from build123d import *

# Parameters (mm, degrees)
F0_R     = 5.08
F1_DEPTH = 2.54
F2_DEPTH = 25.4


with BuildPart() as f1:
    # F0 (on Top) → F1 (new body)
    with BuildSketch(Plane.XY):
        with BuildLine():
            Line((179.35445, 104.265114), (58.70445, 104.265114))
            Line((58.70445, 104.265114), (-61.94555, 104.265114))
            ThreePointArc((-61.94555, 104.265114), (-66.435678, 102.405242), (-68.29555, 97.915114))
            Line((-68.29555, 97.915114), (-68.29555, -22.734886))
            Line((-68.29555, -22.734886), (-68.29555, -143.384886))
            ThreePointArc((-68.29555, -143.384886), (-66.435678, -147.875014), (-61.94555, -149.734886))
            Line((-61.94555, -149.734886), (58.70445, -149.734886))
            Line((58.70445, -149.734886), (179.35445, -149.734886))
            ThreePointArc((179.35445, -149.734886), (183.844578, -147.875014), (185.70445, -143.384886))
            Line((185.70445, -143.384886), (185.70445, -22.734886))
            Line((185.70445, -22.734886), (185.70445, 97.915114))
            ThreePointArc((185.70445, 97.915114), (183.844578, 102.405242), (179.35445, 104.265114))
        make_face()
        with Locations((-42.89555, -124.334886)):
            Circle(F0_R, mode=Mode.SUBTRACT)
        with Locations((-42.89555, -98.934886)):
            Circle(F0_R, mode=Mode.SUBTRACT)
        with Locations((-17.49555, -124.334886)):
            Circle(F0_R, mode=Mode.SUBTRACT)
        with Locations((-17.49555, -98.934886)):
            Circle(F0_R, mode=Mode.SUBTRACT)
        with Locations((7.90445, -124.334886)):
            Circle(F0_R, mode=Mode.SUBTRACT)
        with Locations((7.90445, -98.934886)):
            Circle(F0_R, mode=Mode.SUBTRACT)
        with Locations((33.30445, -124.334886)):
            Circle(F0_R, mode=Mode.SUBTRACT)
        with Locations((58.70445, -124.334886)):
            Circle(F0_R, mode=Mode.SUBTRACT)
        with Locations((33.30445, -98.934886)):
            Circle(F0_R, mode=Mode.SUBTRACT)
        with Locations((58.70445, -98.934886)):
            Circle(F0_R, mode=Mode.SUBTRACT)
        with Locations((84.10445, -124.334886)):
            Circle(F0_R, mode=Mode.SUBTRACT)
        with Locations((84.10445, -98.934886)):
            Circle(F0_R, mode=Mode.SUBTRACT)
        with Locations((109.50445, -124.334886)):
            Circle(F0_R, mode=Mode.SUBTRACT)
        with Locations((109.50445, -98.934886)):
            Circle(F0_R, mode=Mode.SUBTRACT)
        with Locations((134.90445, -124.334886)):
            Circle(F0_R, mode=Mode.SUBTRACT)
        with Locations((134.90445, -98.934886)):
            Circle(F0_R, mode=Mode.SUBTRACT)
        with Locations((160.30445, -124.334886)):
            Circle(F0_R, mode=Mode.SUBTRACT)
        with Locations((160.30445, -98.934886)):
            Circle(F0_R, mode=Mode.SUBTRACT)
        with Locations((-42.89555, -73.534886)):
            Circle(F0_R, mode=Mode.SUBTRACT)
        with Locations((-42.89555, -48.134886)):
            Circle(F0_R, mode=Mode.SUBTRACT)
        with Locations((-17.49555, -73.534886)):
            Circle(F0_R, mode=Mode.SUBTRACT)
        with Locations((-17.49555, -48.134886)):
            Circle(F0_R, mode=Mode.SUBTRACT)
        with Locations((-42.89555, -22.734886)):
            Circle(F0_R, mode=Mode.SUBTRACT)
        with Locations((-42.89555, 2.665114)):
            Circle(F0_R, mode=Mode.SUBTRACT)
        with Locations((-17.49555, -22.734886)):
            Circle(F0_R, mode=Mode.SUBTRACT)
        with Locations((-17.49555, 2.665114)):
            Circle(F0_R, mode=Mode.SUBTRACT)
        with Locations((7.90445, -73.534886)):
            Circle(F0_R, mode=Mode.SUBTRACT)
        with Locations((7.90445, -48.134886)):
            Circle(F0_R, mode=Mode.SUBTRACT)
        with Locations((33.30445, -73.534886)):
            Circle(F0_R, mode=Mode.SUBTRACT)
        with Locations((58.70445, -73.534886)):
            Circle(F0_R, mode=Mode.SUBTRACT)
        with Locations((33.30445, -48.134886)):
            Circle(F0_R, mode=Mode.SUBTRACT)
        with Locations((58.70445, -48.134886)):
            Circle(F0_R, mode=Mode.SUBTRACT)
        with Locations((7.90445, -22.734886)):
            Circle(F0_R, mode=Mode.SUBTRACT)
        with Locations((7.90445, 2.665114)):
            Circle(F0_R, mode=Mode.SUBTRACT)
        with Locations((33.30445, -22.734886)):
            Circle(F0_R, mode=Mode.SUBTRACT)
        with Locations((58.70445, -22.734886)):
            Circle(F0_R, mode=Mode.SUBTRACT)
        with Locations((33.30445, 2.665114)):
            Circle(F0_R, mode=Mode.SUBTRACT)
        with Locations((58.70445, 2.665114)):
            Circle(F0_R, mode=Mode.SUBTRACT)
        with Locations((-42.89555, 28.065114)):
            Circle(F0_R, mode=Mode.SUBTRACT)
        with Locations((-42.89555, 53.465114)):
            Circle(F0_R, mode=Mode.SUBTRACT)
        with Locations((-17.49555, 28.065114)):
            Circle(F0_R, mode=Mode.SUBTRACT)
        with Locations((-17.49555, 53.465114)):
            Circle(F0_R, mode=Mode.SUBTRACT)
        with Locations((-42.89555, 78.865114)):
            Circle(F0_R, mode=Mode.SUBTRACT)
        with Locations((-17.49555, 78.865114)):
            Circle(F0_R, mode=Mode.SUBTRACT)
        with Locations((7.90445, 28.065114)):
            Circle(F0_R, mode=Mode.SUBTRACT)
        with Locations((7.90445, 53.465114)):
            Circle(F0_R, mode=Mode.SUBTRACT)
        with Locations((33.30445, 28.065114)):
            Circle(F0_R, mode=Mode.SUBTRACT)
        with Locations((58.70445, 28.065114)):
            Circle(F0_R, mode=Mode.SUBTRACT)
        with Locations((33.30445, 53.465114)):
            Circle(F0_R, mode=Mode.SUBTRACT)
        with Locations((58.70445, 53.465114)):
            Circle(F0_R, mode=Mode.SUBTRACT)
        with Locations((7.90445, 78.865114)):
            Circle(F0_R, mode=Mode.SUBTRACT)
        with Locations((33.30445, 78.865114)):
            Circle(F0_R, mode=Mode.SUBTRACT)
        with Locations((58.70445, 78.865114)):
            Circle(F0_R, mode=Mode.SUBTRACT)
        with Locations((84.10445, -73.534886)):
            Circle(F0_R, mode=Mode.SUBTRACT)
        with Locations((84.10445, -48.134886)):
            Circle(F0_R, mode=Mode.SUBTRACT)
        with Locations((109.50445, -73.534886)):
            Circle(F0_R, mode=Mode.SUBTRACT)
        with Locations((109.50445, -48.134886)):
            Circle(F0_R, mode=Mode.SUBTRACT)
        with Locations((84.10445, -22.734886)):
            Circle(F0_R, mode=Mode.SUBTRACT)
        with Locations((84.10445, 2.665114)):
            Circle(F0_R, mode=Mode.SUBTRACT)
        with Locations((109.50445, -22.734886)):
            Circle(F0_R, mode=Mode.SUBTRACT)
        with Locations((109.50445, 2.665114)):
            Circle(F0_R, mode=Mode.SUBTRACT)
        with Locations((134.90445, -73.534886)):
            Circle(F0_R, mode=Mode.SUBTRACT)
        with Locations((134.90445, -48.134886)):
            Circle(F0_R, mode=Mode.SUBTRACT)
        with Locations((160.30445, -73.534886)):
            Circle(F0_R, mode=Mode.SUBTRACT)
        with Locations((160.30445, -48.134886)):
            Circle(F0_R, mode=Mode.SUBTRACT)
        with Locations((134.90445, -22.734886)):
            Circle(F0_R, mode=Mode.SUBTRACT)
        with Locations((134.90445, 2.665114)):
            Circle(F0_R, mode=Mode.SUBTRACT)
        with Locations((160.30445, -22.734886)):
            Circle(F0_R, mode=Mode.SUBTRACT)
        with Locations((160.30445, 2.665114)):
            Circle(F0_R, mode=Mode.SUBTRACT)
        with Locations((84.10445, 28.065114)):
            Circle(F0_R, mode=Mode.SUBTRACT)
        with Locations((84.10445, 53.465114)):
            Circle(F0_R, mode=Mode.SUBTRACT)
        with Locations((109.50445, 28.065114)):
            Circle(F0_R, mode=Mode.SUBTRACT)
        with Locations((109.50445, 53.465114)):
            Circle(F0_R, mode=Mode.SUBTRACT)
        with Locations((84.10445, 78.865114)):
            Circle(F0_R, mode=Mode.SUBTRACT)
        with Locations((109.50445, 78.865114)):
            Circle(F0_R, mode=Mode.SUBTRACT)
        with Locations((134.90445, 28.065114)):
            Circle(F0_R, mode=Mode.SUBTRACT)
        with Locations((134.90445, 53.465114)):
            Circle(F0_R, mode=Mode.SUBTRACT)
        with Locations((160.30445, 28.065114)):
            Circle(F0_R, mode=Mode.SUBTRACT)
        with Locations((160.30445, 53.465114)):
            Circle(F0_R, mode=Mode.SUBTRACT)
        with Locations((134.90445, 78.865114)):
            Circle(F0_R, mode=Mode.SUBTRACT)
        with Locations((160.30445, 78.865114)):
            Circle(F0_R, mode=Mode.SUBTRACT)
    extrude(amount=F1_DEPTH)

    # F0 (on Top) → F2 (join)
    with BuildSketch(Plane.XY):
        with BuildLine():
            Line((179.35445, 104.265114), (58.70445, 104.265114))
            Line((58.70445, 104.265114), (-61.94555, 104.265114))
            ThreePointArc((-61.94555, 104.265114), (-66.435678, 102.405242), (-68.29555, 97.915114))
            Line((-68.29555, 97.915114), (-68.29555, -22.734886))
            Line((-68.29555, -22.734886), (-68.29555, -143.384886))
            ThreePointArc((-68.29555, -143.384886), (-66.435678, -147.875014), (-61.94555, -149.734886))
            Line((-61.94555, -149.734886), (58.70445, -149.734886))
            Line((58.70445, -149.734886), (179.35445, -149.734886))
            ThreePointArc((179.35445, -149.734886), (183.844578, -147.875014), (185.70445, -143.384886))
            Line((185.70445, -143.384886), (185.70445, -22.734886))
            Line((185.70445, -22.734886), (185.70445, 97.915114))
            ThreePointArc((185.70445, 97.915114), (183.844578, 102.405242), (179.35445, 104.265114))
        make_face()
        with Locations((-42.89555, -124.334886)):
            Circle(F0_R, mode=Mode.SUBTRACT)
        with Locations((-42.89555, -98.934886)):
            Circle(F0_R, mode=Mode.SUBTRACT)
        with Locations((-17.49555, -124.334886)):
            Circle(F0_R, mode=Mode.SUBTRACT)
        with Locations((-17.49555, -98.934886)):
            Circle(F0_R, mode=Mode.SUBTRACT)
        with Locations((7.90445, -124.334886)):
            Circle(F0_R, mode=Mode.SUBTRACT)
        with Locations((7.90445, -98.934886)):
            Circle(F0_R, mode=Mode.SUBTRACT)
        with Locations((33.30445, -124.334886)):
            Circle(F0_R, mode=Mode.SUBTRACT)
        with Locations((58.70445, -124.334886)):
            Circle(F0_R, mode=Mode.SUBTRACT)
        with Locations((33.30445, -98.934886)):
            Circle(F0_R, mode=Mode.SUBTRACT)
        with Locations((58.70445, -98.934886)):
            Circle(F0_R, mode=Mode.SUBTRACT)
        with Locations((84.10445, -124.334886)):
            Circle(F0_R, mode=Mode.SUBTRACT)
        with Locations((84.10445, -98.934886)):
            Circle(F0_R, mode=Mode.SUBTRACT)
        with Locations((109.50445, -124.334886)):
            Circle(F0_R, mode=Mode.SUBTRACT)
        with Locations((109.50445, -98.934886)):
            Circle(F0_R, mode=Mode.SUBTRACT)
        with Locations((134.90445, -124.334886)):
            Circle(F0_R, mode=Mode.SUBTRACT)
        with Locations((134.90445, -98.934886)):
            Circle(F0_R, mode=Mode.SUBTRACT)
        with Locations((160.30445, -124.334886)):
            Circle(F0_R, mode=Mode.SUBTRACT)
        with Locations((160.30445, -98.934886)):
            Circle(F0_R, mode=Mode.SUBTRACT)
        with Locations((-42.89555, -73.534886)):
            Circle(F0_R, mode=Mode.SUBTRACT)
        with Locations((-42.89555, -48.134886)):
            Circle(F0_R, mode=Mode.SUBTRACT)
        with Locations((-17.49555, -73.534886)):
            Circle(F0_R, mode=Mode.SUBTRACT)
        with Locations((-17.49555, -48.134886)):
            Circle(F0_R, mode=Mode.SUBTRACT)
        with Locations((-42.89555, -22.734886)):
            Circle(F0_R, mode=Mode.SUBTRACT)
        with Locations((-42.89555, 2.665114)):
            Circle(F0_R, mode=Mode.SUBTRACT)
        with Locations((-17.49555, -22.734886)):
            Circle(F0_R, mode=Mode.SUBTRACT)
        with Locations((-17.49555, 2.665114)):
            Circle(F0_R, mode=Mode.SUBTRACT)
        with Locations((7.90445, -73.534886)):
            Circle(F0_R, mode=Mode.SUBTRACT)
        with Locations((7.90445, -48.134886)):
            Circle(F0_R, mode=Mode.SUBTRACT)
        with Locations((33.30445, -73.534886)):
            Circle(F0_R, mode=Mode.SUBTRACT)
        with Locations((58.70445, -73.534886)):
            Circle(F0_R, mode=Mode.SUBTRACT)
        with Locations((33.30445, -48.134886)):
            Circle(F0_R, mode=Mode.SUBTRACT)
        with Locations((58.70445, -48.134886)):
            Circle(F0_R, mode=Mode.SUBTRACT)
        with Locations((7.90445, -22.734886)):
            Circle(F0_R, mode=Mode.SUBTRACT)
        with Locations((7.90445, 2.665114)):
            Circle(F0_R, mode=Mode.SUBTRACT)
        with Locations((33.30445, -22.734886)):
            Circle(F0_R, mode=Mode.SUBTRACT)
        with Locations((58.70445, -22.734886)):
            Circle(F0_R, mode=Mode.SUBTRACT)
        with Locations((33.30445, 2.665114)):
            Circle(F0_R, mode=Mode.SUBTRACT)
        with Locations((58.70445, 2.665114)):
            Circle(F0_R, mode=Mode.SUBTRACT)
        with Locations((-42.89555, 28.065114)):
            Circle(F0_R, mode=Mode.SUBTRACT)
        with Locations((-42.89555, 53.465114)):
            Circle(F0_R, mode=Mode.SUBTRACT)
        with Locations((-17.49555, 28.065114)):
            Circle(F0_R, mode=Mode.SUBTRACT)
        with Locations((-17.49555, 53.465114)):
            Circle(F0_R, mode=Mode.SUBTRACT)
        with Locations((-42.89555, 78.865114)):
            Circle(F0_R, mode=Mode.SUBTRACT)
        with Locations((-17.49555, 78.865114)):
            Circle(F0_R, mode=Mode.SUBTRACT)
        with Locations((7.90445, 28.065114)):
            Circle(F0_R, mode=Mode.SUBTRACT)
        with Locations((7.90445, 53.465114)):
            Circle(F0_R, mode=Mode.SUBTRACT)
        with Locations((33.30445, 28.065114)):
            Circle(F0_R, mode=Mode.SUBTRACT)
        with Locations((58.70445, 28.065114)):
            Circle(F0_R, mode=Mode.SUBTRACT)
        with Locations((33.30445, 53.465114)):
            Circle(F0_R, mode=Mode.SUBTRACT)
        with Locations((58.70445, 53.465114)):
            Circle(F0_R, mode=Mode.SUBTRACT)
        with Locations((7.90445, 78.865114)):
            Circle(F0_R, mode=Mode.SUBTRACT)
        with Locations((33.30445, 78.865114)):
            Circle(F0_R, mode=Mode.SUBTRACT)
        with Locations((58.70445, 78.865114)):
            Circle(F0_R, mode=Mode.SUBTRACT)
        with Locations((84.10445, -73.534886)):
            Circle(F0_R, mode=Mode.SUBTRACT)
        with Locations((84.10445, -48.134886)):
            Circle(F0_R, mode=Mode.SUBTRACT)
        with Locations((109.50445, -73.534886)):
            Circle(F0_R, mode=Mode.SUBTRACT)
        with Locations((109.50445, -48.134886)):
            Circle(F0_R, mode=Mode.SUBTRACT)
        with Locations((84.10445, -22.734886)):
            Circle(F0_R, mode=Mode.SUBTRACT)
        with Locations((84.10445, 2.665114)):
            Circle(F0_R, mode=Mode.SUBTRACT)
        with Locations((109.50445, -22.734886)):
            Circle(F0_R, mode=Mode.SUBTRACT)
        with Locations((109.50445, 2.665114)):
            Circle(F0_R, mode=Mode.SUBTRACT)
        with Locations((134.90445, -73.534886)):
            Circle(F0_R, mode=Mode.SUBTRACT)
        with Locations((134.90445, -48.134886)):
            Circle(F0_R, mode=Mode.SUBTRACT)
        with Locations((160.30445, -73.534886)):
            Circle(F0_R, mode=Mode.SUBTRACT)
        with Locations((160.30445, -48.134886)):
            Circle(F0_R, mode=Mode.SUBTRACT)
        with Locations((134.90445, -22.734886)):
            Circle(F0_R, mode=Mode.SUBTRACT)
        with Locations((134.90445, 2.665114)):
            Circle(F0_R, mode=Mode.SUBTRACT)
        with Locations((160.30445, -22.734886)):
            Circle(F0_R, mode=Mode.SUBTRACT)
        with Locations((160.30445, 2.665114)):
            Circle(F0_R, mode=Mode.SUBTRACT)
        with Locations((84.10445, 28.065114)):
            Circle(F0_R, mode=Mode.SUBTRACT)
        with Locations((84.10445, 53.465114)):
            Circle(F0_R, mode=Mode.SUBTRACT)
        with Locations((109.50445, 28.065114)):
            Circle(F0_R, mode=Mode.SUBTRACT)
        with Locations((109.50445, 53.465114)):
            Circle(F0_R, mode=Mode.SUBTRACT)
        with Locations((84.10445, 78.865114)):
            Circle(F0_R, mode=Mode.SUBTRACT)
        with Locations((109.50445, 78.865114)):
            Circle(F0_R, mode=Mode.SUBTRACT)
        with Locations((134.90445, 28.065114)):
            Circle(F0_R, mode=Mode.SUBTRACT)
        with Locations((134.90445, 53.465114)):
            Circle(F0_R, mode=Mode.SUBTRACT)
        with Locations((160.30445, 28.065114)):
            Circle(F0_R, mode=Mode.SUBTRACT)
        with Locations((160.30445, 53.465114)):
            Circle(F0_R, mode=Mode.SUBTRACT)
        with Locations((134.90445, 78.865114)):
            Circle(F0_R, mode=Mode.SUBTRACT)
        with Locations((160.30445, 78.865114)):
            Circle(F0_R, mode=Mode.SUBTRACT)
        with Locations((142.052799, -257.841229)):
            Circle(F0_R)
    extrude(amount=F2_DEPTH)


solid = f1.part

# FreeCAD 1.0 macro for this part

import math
import FreeCAD as App
import Part
import Sketcher
Q = App.Units.Quantity

doc = App.newDocument("Part")
body = doc.addObject("PartDesign::Body", "Body")
body.AllowCompound = True

sketch1 = body.newObject("Sketcher::SketchObject", "Sketch")
sketch1.AttachmentSupport = (doc.getObject("XY_Plane"), [""])
sketch1.MapMode = "FlatFace"
sketch1.addGeometry([
    Part.LineSegment(App.Vector(179, 104, 0), App.Vector(-62, 104, 0)),
    Part.ArcOfCircle(Part.Circle(App.Vector(-62, 98, 0), App.Vector(0, 0, 1), 6), math.radians(90), math.radians(180)),
    Part.LineSegment(App.Vector(-68, 98, 0), App.Vector(-68, -143, 0)),
    Part.ArcOfCircle(Part.Circle(App.Vector(-62, -143, 0), App.Vector(0, 0, 1), 6), math.radians(-180), math.radians(-90)),
    Part.LineSegment(App.Vector(-62, -150, 0), App.Vector(179, -150, 0)),
    Part.ArcOfCircle(Part.Circle(App.Vector(179, -143, 0), App.Vector(0, 0, 1), 6), math.radians(-90), math.radians(0)),
    Part.LineSegment(App.Vector(186, -143, 0), App.Vector(186, 98, 0)),
    Part.ArcOfCircle(Part.Circle(App.Vector(179, 98, 0), App.Vector(0, 0, 1), 6), math.radians(0), math.radians(90)),
    Part.Circle(App.Vector(-43, -124, 0), App.Vector(0, 0, 1), 5),
    Part.Circle(App.Vector(-17, -124, 0), App.Vector(0, 0, 1), 5),
    Part.Circle(App.Vector(-43, -99, 0), App.Vector(0, 0, 1), 5),
    Part.Circle(App.Vector(-17, -99, 0), App.Vector(0, 0, 1), 5),
    Part.Circle(App.Vector(8, -124, 0), App.Vector(0, 0, 1), 5),
    Part.Circle(App.Vector(33, -124, 0), App.Vector(0, 0, 1), 5),
    Part.Circle(App.Vector(59, -124, 0), App.Vector(0, 0, 1), 5),
    Part.Circle(App.Vector(8, -99, 0), App.Vector(0, 0, 1), 5),
    Part.Circle(App.Vector(33, -99, 0), App.Vector(0, 0, 1), 5),
    Part.Circle(App.Vector(59, -99, 0), App.Vector(0, 0, 1), 5),
    Part.Circle(App.Vector(-43, -74, 0), App.Vector(0, 0, 1), 5),
    Part.Circle(App.Vector(-17, -74, 0), App.Vector(0, 0, 1), 5),
    Part.Circle(App.Vector(-43, -48, 0), App.Vector(0, 0, 1), 5),
    Part.Circle(App.Vector(-43, -23, 0), App.Vector(0, 0, 1), 5),
    Part.Circle(App.Vector(-17, -48, 0), App.Vector(0, 0, 1), 5),
    Part.Circle(App.Vector(-17, -23, 0), App.Vector(0, 0, 1), 5),
    Part.Circle(App.Vector(8, -74, 0), App.Vector(0, 0, 1), 5),
    Part.Circle(App.Vector(33, -74, 0), App.Vector(0, 0, 1), 5),
    Part.Circle(App.Vector(59, -74, 0), App.Vector(0, 0, 1), 5),
    Part.Circle(App.Vector(8, -48, 0), App.Vector(0, 0, 1), 5),
    Part.Circle(App.Vector(8, -23, 0), App.Vector(0, 0, 1), 5),
    Part.Circle(App.Vector(33, -48, 0), App.Vector(0, 0, 1), 5),
    Part.Circle(App.Vector(59, -48, 0), App.Vector(0, 0, 1), 5),
    Part.Circle(App.Vector(33, -23, 0), App.Vector(0, 0, 1), 5),
    Part.Circle(App.Vector(59, -23, 0), App.Vector(0, 0, 1), 5),
    Part.Circle(App.Vector(84, -124, 0), App.Vector(0, 0, 1), 5),
    Part.Circle(App.Vector(110, -124, 0), App.Vector(0, 0, 1), 5),
    Part.Circle(App.Vector(84, -99, 0), App.Vector(0, 0, 1), 5),
    Part.Circle(App.Vector(110, -99, 0), App.Vector(0, 0, 1), 5),
    Part.Circle(App.Vector(135, -124, 0), App.Vector(0, 0, 1), 5),
    Part.Circle(App.Vector(160, -124, 0), App.Vector(0, 0, 1), 5),
    Part.Circle(App.Vector(135, -99, 0), App.Vector(0, 0, 1), 5),
    Part.Circle(App.Vector(160, -99, 0), App.Vector(0, 0, 1), 5),
    Part.Circle(App.Vector(84, -74, 0), App.Vector(0, 0, 1), 5),
    Part.Circle(App.Vector(110, -74, 0), App.Vector(0, 0, 1), 5),
    Part.Circle(App.Vector(84, -48, 0), App.Vector(0, 0, 1), 5),
    Part.Circle(App.Vector(84, -23, 0), App.Vector(0, 0, 1), 5),
    Part.Circle(App.Vector(110, -48, 0), App.Vector(0, 0, 1), 5),
    Part.Circle(App.Vector(110, -23, 0), App.Vector(0, 0, 1), 5),
    Part.Circle(App.Vector(135, -74, 0), App.Vector(0, 0, 1), 5),
    Part.Circle(App.Vector(160, -74, 0), App.Vector(0, 0, 1), 5),
    Part.Circle(App.Vector(135, -48, 0), App.Vector(0, 0, 1), 5),
    Part.Circle(App.Vector(135, -23, 0), App.Vector(0, 0, 1), 5),
    Part.Circle(App.Vector(160, -48, 0), App.Vector(0, 0, 1), 5),
    Part.Circle(App.Vector(160, -23, 0), App.Vector(0, 0, 1), 5),
    Part.Circle(App.Vector(-43, 3, 0), App.Vector(0, 0, 1), 5),
    Part.Circle(App.Vector(-17, 3, 0), App.Vector(0, 0, 1), 5),
    Part.Circle(App.Vector(-43, 28, 0), App.Vector(0, 0, 1), 5),
    Part.Circle(App.Vector(-17, 28, 0), App.Vector(0, 0, 1), 5),
    Part.Circle(App.Vector(8, 3, 0), App.Vector(0, 0, 1), 5),
    Part.Circle(App.Vector(33, 3, 0), App.Vector(0, 0, 1), 5),
    Part.Circle(App.Vector(59, 3, 0), App.Vector(0, 0, 1), 5),
    Part.Circle(App.Vector(8, 28, 0), App.Vector(0, 0, 1), 5),
    Part.Circle(App.Vector(33, 28, 0), App.Vector(0, 0, 1), 5),
    Part.Circle(App.Vector(59, 28, 0), App.Vector(0, 0, 1), 5),
    Part.Circle(App.Vector(-43, 53, 0), App.Vector(0, 0, 1), 5),
    Part.Circle(App.Vector(-17, 53, 0), App.Vector(0, 0, 1), 5),
    Part.Circle(App.Vector(-43, 79, 0), App.Vector(0, 0, 1), 5),
    Part.Circle(App.Vector(-17, 79, 0), App.Vector(0, 0, 1), 5),
    Part.Circle(App.Vector(8, 53, 0), App.Vector(0, 0, 1), 5),
    Part.Circle(App.Vector(33, 53, 0), App.Vector(0, 0, 1), 5),
    Part.Circle(App.Vector(59, 53, 0), App.Vector(0, 0, 1), 5),
    Part.Circle(App.Vector(8, 79, 0), App.Vector(0, 0, 1), 5),
    Part.Circle(App.Vector(33, 79, 0), App.Vector(0, 0, 1), 5),
    Part.Circle(App.Vector(59, 79, 0), App.Vector(0, 0, 1), 5),
    Part.Circle(App.Vector(84, 3, 0), App.Vector(0, 0, 1), 5),
    Part.Circle(App.Vector(110, 3, 0), App.Vector(0, 0, 1), 5),
    Part.Circle(App.Vector(84, 28, 0), App.Vector(0, 0, 1), 5),
    Part.Circle(App.Vector(110, 28, 0), App.Vector(0, 0, 1), 5),
    Part.Circle(App.Vector(135, 3, 0), App.Vector(0, 0, 1), 5),
    Part.Circle(App.Vector(160, 3, 0), App.Vector(0, 0, 1), 5),
    Part.Circle(App.Vector(135, 28, 0), App.Vector(0, 0, 1), 5),
    Part.Circle(App.Vector(160, 28, 0), App.Vector(0, 0, 1), 5),
    Part.Circle(App.Vector(84, 53, 0), App.Vector(0, 0, 1), 5),
    Part.Circle(App.Vector(110, 53, 0), App.Vector(0, 0, 1), 5),
    Part.Circle(App.Vector(84, 79, 0), App.Vector(0, 0, 1), 5),
    Part.Circle(App.Vector(110, 79, 0), App.Vector(0, 0, 1), 5),
    Part.Circle(App.Vector(135, 53, 0), App.Vector(0, 0, 1), 5),
    Part.Circle(App.Vector(160, 53, 0), App.Vector(0, 0, 1), 5),
    Part.Circle(App.Vector(135, 79, 0), App.Vector(0, 0, 1), 5),
    Part.Circle(App.Vector(160, 79, 0), App.Vector(0, 0, 1), 5),
], False)
sketch1.addConstraint([
    Sketcher.Constraint("Tangent", 0, 2, 1, 1),
    Sketcher.Constraint("Tangent", 1, 2, 2, 1),
    Sketcher.Constraint("Tangent", 2, 2, 3, 1),
    Sketcher.Constraint("Tangent", 3, 2, 4, 1),
    Sketcher.Constraint("Tangent", 4, 2, 5, 1),
    Sketcher.Constraint("Tangent", 5, 2, 6, 1),
    Sketcher.Constraint("Tangent", 6, 2, 7, 1),
    Sketcher.Constraint("Tangent", 7, 2, 0, 1),
    Sketcher.Constraint("Horizontal", 0),
    Sketcher.Constraint("Vertical", 2),
    Sketcher.Constraint("Horizontal", 4),
    Sketcher.Constraint("Vertical", 6),
    Sketcher.Constraint("Equal", 1, 3),
    Sketcher.Constraint("Equal", 3, 5),
    Sketcher.Constraint("Equal", 5, 7),
    Sketcher.Constraint("Equal", 8, 9),
    Sketcher.Constraint("Equal", 9, 10),
    Sketcher.Constraint("Equal", 10, 11),
    Sketcher.Constraint("Equal", 11, 12),
    Sketcher.Constraint("Equal", 12, 13),
    Sketcher.Constraint("Equal", 13, 14),
    Sketcher.Constraint("Equal", 14, 15),
    Sketcher.Constraint("Equal", 15, 16),
    Sketcher.Constraint("Equal", 16, 17),
    Sketcher.Constraint("Equal", 17, 18),
    Sketcher.Constraint("Equal", 18, 19),
    Sketcher.Constraint("Equal", 19, 20),
    Sketcher.Constraint("Equal", 20, 21),
    Sketcher.Constraint("Equal", 21, 22),
    Sketcher.Constraint("Equal", 22, 23),
    Sketcher.Constraint("Equal", 23, 24),
    Sketcher.Constraint("Equal", 24, 25),
    Sketcher.Constraint("Equal", 25, 26),
    Sketcher.Constraint("Equal", 26, 27),
    Sketcher.Constraint("Equal", 27, 28),
    Sketcher.Constraint("Equal", 28, 29),
    Sketcher.Constraint("Equal", 29, 30),
    Sketcher.Constraint("Equal", 30, 31),
    Sketcher.Constraint("Equal", 31, 32),
    Sketcher.Constraint("Equal", 32, 33),
    Sketcher.Constraint("Equal", 33, 34),
    Sketcher.Constraint("Equal", 34, 35),
    Sketcher.Constraint("Equal", 35, 36),
    Sketcher.Constraint("Equal", 36, 37),
    Sketcher.Constraint("Equal", 37, 38),
    Sketcher.Constraint("Equal", 38, 39),
    Sketcher.Constraint("Equal", 39, 40),
    Sketcher.Constraint("Equal", 40, 41),
    Sketcher.Constraint("Equal", 41, 42),
    Sketcher.Constraint("Equal", 42, 43),
    Sketcher.Constraint("Equal", 43, 44),
    Sketcher.Constraint("Equal", 44, 45),
    Sketcher.Constraint("Equal", 45, 46),
    Sketcher.Constraint("Equal", 46, 47),
    Sketcher.Constraint("Equal", 47, 48),
    Sketcher.Constraint("Equal", 48, 49),
    Sketcher.Constraint("Equal", 49, 50),
    Sketcher.Constraint("Equal", 50, 51),
    Sketcher.Constraint("Equal", 51, 52),
    Sketcher.Constraint("Equal", 52, 53),
    Sketcher.Constraint("Equal", 53, 54),
    Sketcher.Constraint("Equal", 54, 55),
    Sketcher.Constraint("Equal", 55, 56),
    Sketcher.Constraint("Equal", 56, 57),
    Sketcher.Constraint("Equal", 57, 58),
    Sketcher.Constraint("Equal", 58, 59),
    Sketcher.Constraint("Equal", 59, 60),
    Sketcher.Constraint("Equal", 60, 61),
    Sketcher.Constraint("Equal", 61, 62),
    Sketcher.Constraint("Equal", 62, 63),
    Sketcher.Constraint("Equal", 63, 64),
    Sketcher.Constraint("Equal", 64, 65),
    Sketcher.Constraint("Equal", 65, 66),
    Sketcher.Constraint("Equal", 66, 67),
    Sketcher.Constraint("Equal", 67, 68),
    Sketcher.Constraint("Equal", 68, 69),
    Sketcher.Constraint("Equal", 69, 70),
    Sketcher.Constraint("Equal", 70, 71),
    Sketcher.Constraint("Equal", 71, 72),
    Sketcher.Constraint("Equal", 72, 73),
    Sketcher.Constraint("Equal", 73, 74),
    Sketcher.Constraint("Equal", 74, 75),
    Sketcher.Constraint("Equal", 75, 76),
    Sketcher.Constraint("Equal", 76, 77),
    Sketcher.Constraint("Equal", 77, 78),
    Sketcher.Constraint("Equal", 78, 79),
    Sketcher.Constraint("Equal", 79, 80),
    Sketcher.Constraint("Equal", 80, 81),
    Sketcher.Constraint("Equal", 81, 82),
    Sketcher.Constraint("Equal", 82, 83),
    Sketcher.Constraint("Equal", 83, 84),
    Sketcher.Constraint("Equal", 84, 85),
    Sketcher.Constraint("Equal", 85, 86),
    Sketcher.Constraint("Equal", 86, 87),
    Sketcher.Constraint("Equal", 87, 88),
    Sketcher.Constraint("Horizontal", 8, 3, 9, 3),
    Sketcher.Constraint("Horizontal", 10, 3, 11, 3),
    Sketcher.Constraint("Horizontal", 9, 3, 12, 3),
    Sketcher.Constraint("Horizontal", 12, 3, 13, 3),
    Sketcher.Constraint("Horizontal", 13, 3, 14, 3),
    Sketcher.Constraint("Horizontal", 11, 3, 15, 3),
    Sketcher.Constraint("Horizontal", 15, 3, 16, 3),
    Sketcher.Constraint("Horizontal", 16, 3, 17, 3),
    Sketcher.Constraint("Horizontal", 18, 3, 19, 3),
    Sketcher.Constraint("Horizontal", 20, 3, 22, 3),
    Sketcher.Constraint("Horizontal", 21, 3, 23, 3),
    Sketcher.Constraint("Horizontal", 19, 3, 24, 3),
    Sketcher.Constraint("Horizontal", 24, 3, 25, 3),
    Sketcher.Constraint("Horizontal", 25, 3, 26, 3),
    Sketcher.Constraint("Horizontal", 22, 3, 27, 3),
    Sketcher.Constraint("Horizontal", 23, 3, 28, 3),
    Sketcher.Constraint("Horizontal", 27, 3, 29, 3),
    Sketcher.Constraint("Horizontal", 29, 3, 30, 3),
    Sketcher.Constraint("Horizontal", 28, 3, 31, 3),
    Sketcher.Constraint("Horizontal", 31, 3, 32, 3),
    Sketcher.Constraint("Horizontal", 14, 3, 33, 3),
    Sketcher.Constraint("Horizontal", 33, 3, 34, 3),
    Sketcher.Constraint("Horizontal", 17, 3, 35, 3),
    Sketcher.Constraint("Horizontal", 35, 3, 36, 3),
    Sketcher.Constraint("Horizontal", 34, 3, 37, 3),
    Sketcher.Constraint("Horizontal", 37, 3, 38, 3),
    Sketcher.Constraint("Horizontal", 36, 3, 39, 3),
    Sketcher.Constraint("Horizontal", 39, 3, 40, 3),
    Sketcher.Constraint("Horizontal", 26, 3, 41, 3),
    Sketcher.Constraint("Horizontal", 41, 3, 42, 3),
    Sketcher.Constraint("Horizontal", 30, 3, 43, 3),
    Sketcher.Constraint("Horizontal", 32, 3, 44, 3),
    Sketcher.Constraint("Horizontal", 43, 3, 45, 3),
    Sketcher.Constraint("Horizontal", 44, 3, 46, 3),
    Sketcher.Constraint("Horizontal", 42, 3, 47, 3),
    Sketcher.Constraint("Horizontal", 47, 3, 48, 3),
    Sketcher.Constraint("Horizontal", 45, 3, 49, 3),
    Sketcher.Constraint("Horizontal", 46, 3, 50, 3),
    Sketcher.Constraint("Horizontal", 49, 3, 51, 3),
    Sketcher.Constraint("Horizontal", 50, 3, 52, 3),
    Sketcher.Constraint("Horizontal", 53, 3, 54, 3),
    Sketcher.Constraint("Horizontal", 55, 3, 56, 3),
    Sketcher.Constraint("Horizontal", 54, 3, 57, 3),
    Sketcher.Constraint("Horizontal", 57, 3, 58, 3),
    Sketcher.Constraint("Horizontal", 58, 3, 59, 3),
    Sketcher.Constraint("Horizontal", 56, 3, 60, 3),
    Sketcher.Constraint("Horizontal", 60, 3, 61, 3),
    Sketcher.Constraint("Horizontal", 61, 3, 62, 3),
    Sketcher.Constraint("Horizontal", 63, 3, 64, 3),
    Sketcher.Constraint("Horizontal", 65, 3, 66, 3),
    Sketcher.Constraint("Horizontal", 64, 3, 67, 3),
    Sketcher.Constraint("Horizontal", 67, 3, 68, 3),
    Sketcher.Constraint("Horizontal", 68, 3, 69, 3),
    Sketcher.Constraint("Horizontal", 66, 3, 70, 3),
    Sketcher.Constraint("Horizontal", 70, 3, 71, 3),
    Sketcher.Constraint("Horizontal", 71, 3, 72, 3),
    Sketcher.Constraint("Horizontal", 59, 3, 73, 3),
    Sketcher.Constraint("Horizontal", 73, 3, 74, 3),
    Sketcher.Constraint("Horizontal", 62, 3, 75, 3),
    Sketcher.Constraint("Horizontal", 75, 3, 76, 3),
    Sketcher.Constraint("Horizontal", 74, 3, 77, 3),
    Sketcher.Constraint("Horizontal", 77, 3, 78, 3),
    Sketcher.Constraint("Horizontal", 76, 3, 79, 3),
    Sketcher.Constraint("Horizontal", 79, 3, 80, 3),
    Sketcher.Constraint("Horizontal", 69, 3, 81, 3),
    Sketcher.Constraint("Horizontal", 81, 3, 82, 3),
    Sketcher.Constraint("Horizontal", 72, 3, 83, 3),
    Sketcher.Constraint("Horizontal", 83, 3, 84, 3),
    Sketcher.Constraint("Horizontal", 82, 3, 85, 3),
    Sketcher.Constraint("Horizontal", 85, 3, 86, 3),
    Sketcher.Constraint("Horizontal", 84, 3, 87, 3),
    Sketcher.Constraint("Horizontal", 87, 3, 88, 3),
    Sketcher.Constraint("Vertical", 8, 3, 10, 3),
    Sketcher.Constraint("Vertical", 9, 3, 11, 3),
    Sketcher.Constraint("Vertical", 12, 3, 15, 3),
    Sketcher.Constraint("Vertical", 13, 3, 16, 3),
    Sketcher.Constraint("Vertical", 14, 3, 17, 3),
    Sketcher.Constraint("Vertical", 10, 3, 18, 3),
    Sketcher.Constraint("Vertical", 11, 3, 19, 3),
    Sketcher.Constraint("Vertical", 18, 3, 20, 3),
    Sketcher.Constraint("Vertical", 20, 3, 21, 3),
    Sketcher.Constraint("Vertical", 19, 3, 22, 3),
    Sketcher.Constraint("Vertical", 22, 3, 23, 3),
    Sketcher.Constraint("Vertical", 15, 3, 24, 3),
    Sketcher.Constraint("Vertical", 16, 3, 25, 3),
    Sketcher.Constraint("Vertical", 17, 3, 26, 3),
    Sketcher.Constraint("Vertical", 24, 3, 27, 3),
    Sketcher.Constraint("Vertical", 27, 3, 28, 3),
    Sketcher.Constraint("Vertical", 25, 3, 29, 3),
    Sketcher.Constraint("Vertical", 26, 3, 30, 3),
    Sketcher.Constraint("Vertical", 29, 3, 31, 3),
    Sketcher.Constraint("Vertical", 30, 3, 32, 3),
    Sketcher.Constraint("Vertical", 33, 3, 35, 3),
    Sketcher.Constraint("Vertical", 34, 3, 36, 3),
    Sketcher.Constraint("Vertical", 37, 3, 39, 3),
    Sketcher.Constraint("Vertical", 38, 3, 40, 3),
    Sketcher.Constraint("Vertical", 35, 3, 41, 3),
    Sketcher.Constraint("Vertical", 36, 3, 42, 3),
    Sketcher.Constraint("Vertical", 41, 3, 43, 3),
    Sketcher.Constraint("Vertical", 43, 3, 44, 3),
    Sketcher.Constraint("Vertical", 42, 3, 45, 3),
    Sketcher.Constraint("Vertical", 45, 3, 46, 3),
    Sketcher.Constraint("Vertical", 39, 3, 47, 3),
    Sketcher.Constraint("Vertical", 40, 3, 48, 3),
    Sketcher.Constraint("Vertical", 47, 3, 49, 3),
    Sketcher.Constraint("Vertical", 49, 3, 50, 3),
    Sketcher.Constraint("Vertical", 48, 3, 51, 3),
    Sketcher.Constraint("Vertical", 51, 3, 52, 3),
    Sketcher.Constraint("Vertical", 21, 3, 53, 3),
    Sketcher.Constraint("Vertical", 23, 3, 54, 3),
    Sketcher.Constraint("Vertical", 53, 3, 55, 3),
    Sketcher.Constraint("Vertical", 54, 3, 56, 3),
    Sketcher.Constraint("Vertical", 28, 3, 57, 3),
    Sketcher.Constraint("Vertical", 31, 3, 58, 3),
    Sketcher.Constraint("Vertical", 32, 3, 59, 3),
    Sketcher.Constraint("Vertical", 57, 3, 60, 3),
    Sketcher.Constraint("Vertical", 58, 3, 61, 3),
    Sketcher.Constraint("Vertical", 59, 3, 62, 3),
    Sketcher.Constraint("Vertical", 55, 3, 63, 3),
    Sketcher.Constraint("Vertical", 56, 3, 64, 3),
    Sketcher.Constraint("Vertical", 63, 3, 65, 3),
    Sketcher.Constraint("Vertical", 64, 3, 66, 3),
    Sketcher.Constraint("Vertical", 60, 3, 67, 3),
    Sketcher.Constraint("Vertical", 61, 3, 68, 3),
    Sketcher.Constraint("Vertical", 62, 3, 69, 3),
    Sketcher.Constraint("Vertical", 67, 3, 70, 3),
    Sketcher.Constraint("Vertical", 68, 3, 71, 3),
    Sketcher.Constraint("Vertical", 69, 3, 72, 3),
    Sketcher.Constraint("Vertical", 44, 3, 73, 3),
    Sketcher.Constraint("Vertical", 46, 3, 74, 3),
    Sketcher.Constraint("Vertical", 73, 3, 75, 3),
    Sketcher.Constraint("Vertical", 74, 3, 76, 3),
    Sketcher.Constraint("Vertical", 50, 3, 77, 3),
    Sketcher.Constraint("Vertical", 52, 3, 78, 3),
    Sketcher.Constraint("Vertical", 77, 3, 79, 3),
    Sketcher.Constraint("Vertical", 78, 3, 80, 3),
    Sketcher.Constraint("Vertical", 75, 3, 81, 3),
    Sketcher.Constraint("Vertical", 76, 3, 82, 3),
    Sketcher.Constraint("Vertical", 81, 3, 83, 3),
    Sketcher.Constraint("Vertical", 82, 3, 84, 3),
    Sketcher.Constraint("Vertical", 79, 3, 85, 3),
    Sketcher.Constraint("Vertical", 80, 3, 86, 3),
    Sketcher.Constraint("Vertical", 85, 3, 87, 3),
    Sketcher.Constraint("Vertical", 86, 3, 88, 3),
    Sketcher.Constraint("Equal", 4, 2),
    Sketcher.Constraint("Diameter", 8, Q("0.4 in")),
    Sketcher.Constraint("Radius", 1, Q("0.25 in")),
    Sketcher.Constraint("DistanceX", 0, 2, 0, 1, Q("9.5 in")),
    Sketcher.Constraint("DistanceX", 1, 3, -1, 1, Q("61.94555 mm")),
    Sketcher.Constraint("DistanceX", 8, 3, -1, 1, Q("42.89555 mm")),
    Sketcher.Constraint("DistanceX", 9, 3, -1, 1, Q("17.49555 mm")),
    Sketcher.Constraint("DistanceX", -1, 1, 12, 3, Q("7.90445 mm")),
    Sketcher.Constraint("DistanceX", -1, 1, 13, 3, Q("33.30445 mm")),
    Sketcher.Constraint("DistanceX", -1, 1, 14, 3, Q("58.70445 mm")),
    Sketcher.Constraint("DistanceX", -1, 1, 33, 3, Q("84.10445 mm")),
    Sketcher.Constraint("DistanceX", -1, 1, 34, 3, Q("109.50445 mm")),
    Sketcher.Constraint("DistanceX", -1, 1, 37, 3, Q("134.90445 mm")),
    Sketcher.Constraint("DistanceX", -1, 1, 38, 3, Q("160.30445 mm")),
    Sketcher.Constraint("DistanceY", -1, 1, 1, 3, Q("97.915114 mm")),
    Sketcher.Constraint("DistanceY", 8, 3, -1, 1, Q("124.334886 mm")),
    Sketcher.Constraint("DistanceY", 10, 3, -1, 1, Q("98.934886 mm")),
    Sketcher.Constraint("DistanceY", 18, 3, -1, 1, Q("73.534886 mm")),
    Sketcher.Constraint("DistanceY", 20, 3, -1, 1, Q("48.134886 mm")),
    Sketcher.Constraint("DistanceY", 21, 3, -1, 1, Q("22.734886 mm")),
    Sketcher.Constraint("DistanceY", -1, 1, 53, 3, Q("2.665114 mm")),
    Sketcher.Constraint("DistanceY", -1, 1, 55, 3, Q("28.065114 mm")),
    Sketcher.Constraint("DistanceY", -1, 1, 63, 3, Q("53.465114 mm")),
    Sketcher.Constraint("DistanceY", -1, 1, 65, 3, Q("78.865114 mm")),
])
pad1 = body.newObject("PartDesign::Pad", "Pad")
pad1.Profile = sketch1
pad1.Length = Q("0.1 in")

sketch2 = body.newObject("Sketcher::SketchObject", "Sketch001")
sketch2.AttachmentSupport = (doc.getObject("XY_Plane"), [""])
sketch2.MapMode = "FlatFace"
sketch2.addGeometry([
    Part.LineSegment(App.Vector(179, 104, 0), App.Vector(-62, 104, 0)),
    Part.ArcOfCircle(Part.Circle(App.Vector(-62, 98, 0), App.Vector(0, 0, 1), 6), math.radians(90), math.radians(180)),
    Part.LineSegment(App.Vector(-68, 98, 0), App.Vector(-68, -143, 0)),
    Part.ArcOfCircle(Part.Circle(App.Vector(-62, -143, 0), App.Vector(0, 0, 1), 6), math.radians(-180), math.radians(-90)),
    Part.LineSegment(App.Vector(-62, -150, 0), App.Vector(179, -150, 0)),
    Part.ArcOfCircle(Part.Circle(App.Vector(179, -143, 0), App.Vector(0, 0, 1), 6), math.radians(-90), math.radians(0)),
    Part.LineSegment(App.Vector(186, -143, 0), App.Vector(186, 98, 0)),
    Part.ArcOfCircle(Part.Circle(App.Vector(179, 98, 0), App.Vector(0, 0, 1), 6), math.radians(0), math.radians(90)),
    Part.Circle(App.Vector(-43, -124, 0), App.Vector(0, 0, 1), 5),
    Part.Circle(App.Vector(-17, -124, 0), App.Vector(0, 0, 1), 5),
    Part.Circle(App.Vector(-43, -99, 0), App.Vector(0, 0, 1), 5),
    Part.Circle(App.Vector(-17, -99, 0), App.Vector(0, 0, 1), 5),
    Part.Circle(App.Vector(8, -124, 0), App.Vector(0, 0, 1), 5),
    Part.Circle(App.Vector(33, -124, 0), App.Vector(0, 0, 1), 5),
    Part.Circle(App.Vector(59, -124, 0), App.Vector(0, 0, 1), 5),
    Part.Circle(App.Vector(8, -99, 0), App.Vector(0, 0, 1), 5),
    Part.Circle(App.Vector(33, -99, 0), App.Vector(0, 0, 1), 5),
    Part.Circle(App.Vector(59, -99, 0), App.Vector(0, 0, 1), 5),
    Part.Circle(App.Vector(-43, -74, 0), App.Vector(0, 0, 1), 5),
    Part.Circle(App.Vector(-17, -74, 0), App.Vector(0, 0, 1), 5),
    Part.Circle(App.Vector(-43, -48, 0), App.Vector(0, 0, 1), 5),
    Part.Circle(App.Vector(-43, -23, 0), App.Vector(0, 0, 1), 5),
    Part.Circle(App.Vector(-17, -48, 0), App.Vector(0, 0, 1), 5),
    Part.Circle(App.Vector(-17, -23, 0), App.Vector(0, 0, 1), 5),
    Part.Circle(App.Vector(8, -74, 0), App.Vector(0, 0, 1), 5),
    Part.Circle(App.Vector(33, -74, 0), App.Vector(0, 0, 1), 5),
    Part.Circle(App.Vector(59, -74, 0), App.Vector(0, 0, 1), 5),
    Part.Circle(App.Vector(8, -48, 0), App.Vector(0, 0, 1), 5),
    Part.Circle(App.Vector(8, -23, 0), App.Vector(0, 0, 1), 5),
    Part.Circle(App.Vector(33, -48, 0), App.Vector(0, 0, 1), 5),
    Part.Circle(App.Vector(59, -48, 0), App.Vector(0, 0, 1), 5),
    Part.Circle(App.Vector(33, -23, 0), App.Vector(0, 0, 1), 5),
    Part.Circle(App.Vector(59, -23, 0), App.Vector(0, 0, 1), 5),
    Part.Circle(App.Vector(84, -124, 0), App.Vector(0, 0, 1), 5),
    Part.Circle(App.Vector(110, -124, 0), App.Vector(0, 0, 1), 5),
    Part.Circle(App.Vector(84, -99, 0), App.Vector(0, 0, 1), 5),
    Part.Circle(App.Vector(110, -99, 0), App.Vector(0, 0, 1), 5),
    Part.Circle(App.Vector(135, -124, 0), App.Vector(0, 0, 1), 5),
    Part.Circle(App.Vector(160, -124, 0), App.Vector(0, 0, 1), 5),
    Part.Circle(App.Vector(135, -99, 0), App.Vector(0, 0, 1), 5),
    Part.Circle(App.Vector(160, -99, 0), App.Vector(0, 0, 1), 5),
    Part.Circle(App.Vector(84, -74, 0), App.Vector(0, 0, 1), 5),
    Part.Circle(App.Vector(110, -74, 0), App.Vector(0, 0, 1), 5),
    Part.Circle(App.Vector(84, -48, 0), App.Vector(0, 0, 1), 5),
    Part.Circle(App.Vector(84, -23, 0), App.Vector(0, 0, 1), 5),
    Part.Circle(App.Vector(110, -48, 0), App.Vector(0, 0, 1), 5),
    Part.Circle(App.Vector(110, -23, 0), App.Vector(0, 0, 1), 5),
    Part.Circle(App.Vector(135, -74, 0), App.Vector(0, 0, 1), 5),
    Part.Circle(App.Vector(160, -74, 0), App.Vector(0, 0, 1), 5),
    Part.Circle(App.Vector(135, -48, 0), App.Vector(0, 0, 1), 5),
    Part.Circle(App.Vector(135, -23, 0), App.Vector(0, 0, 1), 5),
    Part.Circle(App.Vector(160, -48, 0), App.Vector(0, 0, 1), 5),
    Part.Circle(App.Vector(160, -23, 0), App.Vector(0, 0, 1), 5),
    Part.Circle(App.Vector(-43, 3, 0), App.Vector(0, 0, 1), 5),
    Part.Circle(App.Vector(-17, 3, 0), App.Vector(0, 0, 1), 5),
    Part.Circle(App.Vector(-43, 28, 0), App.Vector(0, 0, 1), 5),
    Part.Circle(App.Vector(-17, 28, 0), App.Vector(0, 0, 1), 5),
    Part.Circle(App.Vector(8, 3, 0), App.Vector(0, 0, 1), 5),
    Part.Circle(App.Vector(33, 3, 0), App.Vector(0, 0, 1), 5),
    Part.Circle(App.Vector(59, 3, 0), App.Vector(0, 0, 1), 5),
    Part.Circle(App.Vector(8, 28, 0), App.Vector(0, 0, 1), 5),
    Part.Circle(App.Vector(33, 28, 0), App.Vector(0, 0, 1), 5),
    Part.Circle(App.Vector(59, 28, 0), App.Vector(0, 0, 1), 5),
    Part.Circle(App.Vector(-43, 53, 0), App.Vector(0, 0, 1), 5),
    Part.Circle(App.Vector(-17, 53, 0), App.Vector(0, 0, 1), 5),
    Part.Circle(App.Vector(-43, 79, 0), App.Vector(0, 0, 1), 5),
    Part.Circle(App.Vector(-17, 79, 0), App.Vector(0, 0, 1), 5),
    Part.Circle(App.Vector(8, 53, 0), App.Vector(0, 0, 1), 5),
    Part.Circle(App.Vector(33, 53, 0), App.Vector(0, 0, 1), 5),
    Part.Circle(App.Vector(59, 53, 0), App.Vector(0, 0, 1), 5),
    Part.Circle(App.Vector(8, 79, 0), App.Vector(0, 0, 1), 5),
    Part.Circle(App.Vector(33, 79, 0), App.Vector(0, 0, 1), 5),
    Part.Circle(App.Vector(59, 79, 0), App.Vector(0, 0, 1), 5),
    Part.Circle(App.Vector(84, 3, 0), App.Vector(0, 0, 1), 5),
    Part.Circle(App.Vector(110, 3, 0), App.Vector(0, 0, 1), 5),
    Part.Circle(App.Vector(84, 28, 0), App.Vector(0, 0, 1), 5),
    Part.Circle(App.Vector(110, 28, 0), App.Vector(0, 0, 1), 5),
    Part.Circle(App.Vector(135, 3, 0), App.Vector(0, 0, 1), 5),
    Part.Circle(App.Vector(160, 3, 0), App.Vector(0, 0, 1), 5),
    Part.Circle(App.Vector(135, 28, 0), App.Vector(0, 0, 1), 5),
    Part.Circle(App.Vector(160, 28, 0), App.Vector(0, 0, 1), 5),
    Part.Circle(App.Vector(84, 53, 0), App.Vector(0, 0, 1), 5),
    Part.Circle(App.Vector(110, 53, 0), App.Vector(0, 0, 1), 5),
    Part.Circle(App.Vector(84, 79, 0), App.Vector(0, 0, 1), 5),
    Part.Circle(App.Vector(110, 79, 0), App.Vector(0, 0, 1), 5),
    Part.Circle(App.Vector(135, 53, 0), App.Vector(0, 0, 1), 5),
    Part.Circle(App.Vector(160, 53, 0), App.Vector(0, 0, 1), 5),
    Part.Circle(App.Vector(135, 79, 0), App.Vector(0, 0, 1), 5),
    Part.Circle(App.Vector(160, 79, 0), App.Vector(0, 0, 1), 5),
    Part.Circle(App.Vector(142, -258, 0), App.Vector(0, 0, 1), 5),
], False)
sketch2.addConstraint([
    Sketcher.Constraint("Tangent", 0, 2, 1, 1),
    Sketcher.Constraint("Tangent", 1, 2, 2, 1),
    Sketcher.Constraint("Tangent", 2, 2, 3, 1),
    Sketcher.Constraint("Tangent", 3, 2, 4, 1),
    Sketcher.Constraint("Tangent", 4, 2, 5, 1),
    Sketcher.Constraint("Tangent", 5, 2, 6, 1),
    Sketcher.Constraint("Tangent", 6, 2, 7, 1),
    Sketcher.Constraint("Tangent", 7, 2, 0, 1),
    Sketcher.Constraint("Horizontal", 0),
    Sketcher.Constraint("Vertical", 2),
    Sketcher.Constraint("Horizontal", 4),
    Sketcher.Constraint("Vertical", 6),
    Sketcher.Constraint("Equal", 1, 3),
    Sketcher.Constraint("Equal", 3, 5),
    Sketcher.Constraint("Equal", 5, 7),
    Sketcher.Constraint("Equal", 8, 9),
    Sketcher.Constraint("Equal", 9, 10),
    Sketcher.Constraint("Equal", 10, 11),
    Sketcher.Constraint("Equal", 11, 12),
    Sketcher.Constraint("Equal", 12, 13),
    Sketcher.Constraint("Equal", 13, 14),
    Sketcher.Constraint("Equal", 14, 15),
    Sketcher.Constraint("Equal", 15, 16),
    Sketcher.Constraint("Equal", 16, 17),
    Sketcher.Constraint("Equal", 17, 18),
    Sketcher.Constraint("Equal", 18, 19),
    Sketcher.Constraint("Equal", 19, 20),
    Sketcher.Constraint("Equal", 20, 21),
    Sketcher.Constraint("Equal", 21, 22),
    Sketcher.Constraint("Equal", 22, 23),
    Sketcher.Constraint("Equal", 23, 24),
    Sketcher.Constraint("Equal", 24, 25),
    Sketcher.Constraint("Equal", 25, 26),
    Sketcher.Constraint("Equal", 26, 27),
    Sketcher.Constraint("Equal", 27, 28),
    Sketcher.Constraint("Equal", 28, 29),
    Sketcher.Constraint("Equal", 29, 30),
    Sketcher.Constraint("Equal", 30, 31),
    Sketcher.Constraint("Equal", 31, 32),
    Sketcher.Constraint("Equal", 32, 33),
    Sketcher.Constraint("Equal", 33, 34),
    Sketcher.Constraint("Equal", 34, 35),
    Sketcher.Constraint("Equal", 35, 36),
    Sketcher.Constraint("Equal", 36, 37),
    Sketcher.Constraint("Equal", 37, 38),
    Sketcher.Constraint("Equal", 38, 39),
    Sketcher.Constraint("Equal", 39, 40),
    Sketcher.Constraint("Equal", 40, 41),
    Sketcher.Constraint("Equal", 41, 42),
    Sketcher.Constraint("Equal", 42, 43),
    Sketcher.Constraint("Equal", 43, 44),
    Sketcher.Constraint("Equal", 44, 45),
    Sketcher.Constraint("Equal", 45, 46),
    Sketcher.Constraint("Equal", 46, 47),
    Sketcher.Constraint("Equal", 47, 48),
    Sketcher.Constraint("Equal", 48, 49),
    Sketcher.Constraint("Equal", 49, 50),
    Sketcher.Constraint("Equal", 50, 51),
    Sketcher.Constraint("Equal", 51, 52),
    Sketcher.Constraint("Equal", 52, 53),
    Sketcher.Constraint("Equal", 53, 54),
    Sketcher.Constraint("Equal", 54, 55),
    Sketcher.Constraint("Equal", 55, 56),
    Sketcher.Constraint("Equal", 56, 57),
    Sketcher.Constraint("Equal", 57, 58),
    Sketcher.Constraint("Equal", 58, 59),
    Sketcher.Constraint("Equal", 59, 60),
    Sketcher.Constraint("Equal", 60, 61),
    Sketcher.Constraint("Equal", 61, 62),
    Sketcher.Constraint("Equal", 62, 63),
    Sketcher.Constraint("Equal", 63, 64),
    Sketcher.Constraint("Equal", 64, 65),
    Sketcher.Constraint("Equal", 65, 66),
    Sketcher.Constraint("Equal", 66, 67),
    Sketcher.Constraint("Equal", 67, 68),
    Sketcher.Constraint("Equal", 68, 69),
    Sketcher.Constraint("Equal", 69, 70),
    Sketcher.Constraint("Equal", 70, 71),
    Sketcher.Constraint("Equal", 71, 72),
    Sketcher.Constraint("Equal", 72, 73),
    Sketcher.Constraint("Equal", 73, 74),
    Sketcher.Constraint("Equal", 74, 75),
    Sketcher.Constraint("Equal", 75, 76),
    Sketcher.Constraint("Equal", 76, 77),
    Sketcher.Constraint("Equal", 77, 78),
    Sketcher.Constraint("Equal", 78, 79),
    Sketcher.Constraint("Equal", 79, 80),
    Sketcher.Constraint("Equal", 80, 81),
    Sketcher.Constraint("Equal", 81, 82),
    Sketcher.Constraint("Equal", 82, 83),
    Sketcher.Constraint("Equal", 83, 84),
    Sketcher.Constraint("Equal", 84, 85),
    Sketcher.Constraint("Equal", 85, 86),
    Sketcher.Constraint("Equal", 86, 87),
    Sketcher.Constraint("Equal", 87, 88),
    Sketcher.Constraint("Equal", 88, 89),
    Sketcher.Constraint("Horizontal", 8, 3, 9, 3),
    Sketcher.Constraint("Horizontal", 10, 3, 11, 3),
    Sketcher.Constraint("Horizontal", 9, 3, 12, 3),
    Sketcher.Constraint("Horizontal", 12, 3, 13, 3),
    Sketcher.Constraint("Horizontal", 13, 3, 14, 3),
    Sketcher.Constraint("Horizontal", 11, 3, 15, 3),
    Sketcher.Constraint("Horizontal", 15, 3, 16, 3),
    Sketcher.Constraint("Horizontal", 16, 3, 17, 3),
    Sketcher.Constraint("Horizontal", 18, 3, 19, 3),
    Sketcher.Constraint("Horizontal", 20, 3, 22, 3),
    Sketcher.Constraint("Horizontal", 21, 3, 23, 3),
    Sketcher.Constraint("Horizontal", 19, 3, 24, 3),
    Sketcher.Constraint("Horizontal", 24, 3, 25, 3),
    Sketcher.Constraint("Horizontal", 25, 3, 26, 3),
    Sketcher.Constraint("Horizontal", 22, 3, 27, 3),
    Sketcher.Constraint("Horizontal", 23, 3, 28, 3),
    Sketcher.Constraint("Horizontal", 27, 3, 29, 3),
    Sketcher.Constraint("Horizontal", 29, 3, 30, 3),
    Sketcher.Constraint("Horizontal", 28, 3, 31, 3),
    Sketcher.Constraint("Horizontal", 31, 3, 32, 3),
    Sketcher.Constraint("Horizontal", 14, 3, 33, 3),
    Sketcher.Constraint("Horizontal", 33, 3, 34, 3),
    Sketcher.Constraint("Horizontal", 17, 3, 35, 3),
    Sketcher.Constraint("Horizontal", 35, 3, 36, 3),
    Sketcher.Constraint("Horizontal", 34, 3, 37, 3),
    Sketcher.Constraint("Horizontal", 37, 3, 38, 3),
    Sketcher.Constraint("Horizontal", 36, 3, 39, 3),
    Sketcher.Constraint("Horizontal", 39, 3, 40, 3),
    Sketcher.Constraint("Horizontal", 26, 3, 41, 3),
    Sketcher.Constraint("Horizontal", 41, 3, 42, 3),
    Sketcher.Constraint("Horizontal", 30, 3, 43, 3),
    Sketcher.Constraint("Horizontal", 32, 3, 44, 3),
    Sketcher.Constraint("Horizontal", 43, 3, 45, 3),
    Sketcher.Constraint("Horizontal", 44, 3, 46, 3),
    Sketcher.Constraint("Horizontal", 42, 3, 47, 3),
    Sketcher.Constraint("Horizontal", 47, 3, 48, 3),
    Sketcher.Constraint("Horizontal", 45, 3, 49, 3),
    Sketcher.Constraint("Horizontal", 46, 3, 50, 3),
    Sketcher.Constraint("Horizontal", 49, 3, 51, 3),
    Sketcher.Constraint("Horizontal", 50, 3, 52, 3),
    Sketcher.Constraint("Horizontal", 53, 3, 54, 3),
    Sketcher.Constraint("Horizontal", 55, 3, 56, 3),
    Sketcher.Constraint("Horizontal", 54, 3, 57, 3),
    Sketcher.Constraint("Horizontal", 57, 3, 58, 3),
    Sketcher.Constraint("Horizontal", 58, 3, 59, 3),
    Sketcher.Constraint("Horizontal", 56, 3, 60, 3),
    Sketcher.Constraint("Horizontal", 60, 3, 61, 3),
    Sketcher.Constraint("Horizontal", 61, 3, 62, 3),
    Sketcher.Constraint("Horizontal", 63, 3, 64, 3),
    Sketcher.Constraint("Horizontal", 65, 3, 66, 3),
    Sketcher.Constraint("Horizontal", 64, 3, 67, 3),
    Sketcher.Constraint("Horizontal", 67, 3, 68, 3),
    Sketcher.Constraint("Horizontal", 68, 3, 69, 3),
    Sketcher.Constraint("Horizontal", 66, 3, 70, 3),
    Sketcher.Constraint("Horizontal", 70, 3, 71, 3),
    Sketcher.Constraint("Horizontal", 71, 3, 72, 3),
    Sketcher.Constraint("Horizontal", 59, 3, 73, 3),
    Sketcher.Constraint("Horizontal", 73, 3, 74, 3),
    Sketcher.Constraint("Horizontal", 62, 3, 75, 3),
    Sketcher.Constraint("Horizontal", 75, 3, 76, 3),
    Sketcher.Constraint("Horizontal", 74, 3, 77, 3),
    Sketcher.Constraint("Horizontal", 77, 3, 78, 3),
    Sketcher.Constraint("Horizontal", 76, 3, 79, 3),
    Sketcher.Constraint("Horizontal", 79, 3, 80, 3),
    Sketcher.Constraint("Horizontal", 69, 3, 81, 3),
    Sketcher.Constraint("Horizontal", 81, 3, 82, 3),
    Sketcher.Constraint("Horizontal", 72, 3, 83, 3),
    Sketcher.Constraint("Horizontal", 83, 3, 84, 3),
    Sketcher.Constraint("Horizontal", 82, 3, 85, 3),
    Sketcher.Constraint("Horizontal", 85, 3, 86, 3),
    Sketcher.Constraint("Horizontal", 84, 3, 87, 3),
    Sketcher.Constraint("Horizontal", 87, 3, 88, 3),
    Sketcher.Constraint("Vertical", 8, 3, 10, 3),
    Sketcher.Constraint("Vertical", 9, 3, 11, 3),
    Sketcher.Constraint("Vertical", 12, 3, 15, 3),
    Sketcher.Constraint("Vertical", 13, 3, 16, 3),
    Sketcher.Constraint("Vertical", 14, 3, 17, 3),
    Sketcher.Constraint("Vertical", 10, 3, 18, 3),
    Sketcher.Constraint("Vertical", 11, 3, 19, 3),
    Sketcher.Constraint("Vertical", 18, 3, 20, 3),
    Sketcher.Constraint("Vertical", 20, 3, 21, 3),
    Sketcher.Constraint("Vertical", 19, 3, 22, 3),
    Sketcher.Constraint("Vertical", 22, 3, 23, 3),
    Sketcher.Constraint("Vertical", 15, 3, 24, 3),
    Sketcher.Constraint("Vertical", 16, 3, 25, 3),
    Sketcher.Constraint("Vertical", 17, 3, 26, 3),
    Sketcher.Constraint("Vertical", 24, 3, 27, 3),
    Sketcher.Constraint("Vertical", 27, 3, 28, 3),
    Sketcher.Constraint("Vertical", 25, 3, 29, 3),
    Sketcher.Constraint("Vertical", 26, 3, 30, 3),
    Sketcher.Constraint("Vertical", 29, 3, 31, 3),
    Sketcher.Constraint("Vertical", 30, 3, 32, 3),
    Sketcher.Constraint("Vertical", 33, 3, 35, 3),
    Sketcher.Constraint("Vertical", 34, 3, 36, 3),
    Sketcher.Constraint("Vertical", 37, 3, 39, 3),
    Sketcher.Constraint("Vertical", 38, 3, 40, 3),
    Sketcher.Constraint("Vertical", 35, 3, 41, 3),
    Sketcher.Constraint("Vertical", 36, 3, 42, 3),
    Sketcher.Constraint("Vertical", 41, 3, 43, 3),
    Sketcher.Constraint("Vertical", 43, 3, 44, 3),
    Sketcher.Constraint("Vertical", 42, 3, 45, 3),
    Sketcher.Constraint("Vertical", 45, 3, 46, 3),
    Sketcher.Constraint("Vertical", 39, 3, 47, 3),
    Sketcher.Constraint("Vertical", 40, 3, 48, 3),
    Sketcher.Constraint("Vertical", 47, 3, 49, 3),
    Sketcher.Constraint("Vertical", 49, 3, 50, 3),
    Sketcher.Constraint("Vertical", 48, 3, 51, 3),
    Sketcher.Constraint("Vertical", 51, 3, 52, 3),
    Sketcher.Constraint("Vertical", 21, 3, 53, 3),
    Sketcher.Constraint("Vertical", 23, 3, 54, 3),
    Sketcher.Constraint("Vertical", 53, 3, 55, 3),
    Sketcher.Constraint("Vertical", 54, 3, 56, 3),
    Sketcher.Constraint("Vertical", 28, 3, 57, 3),
    Sketcher.Constraint("Vertical", 31, 3, 58, 3),
    Sketcher.Constraint("Vertical", 32, 3, 59, 3),
    Sketcher.Constraint("Vertical", 57, 3, 60, 3),
    Sketcher.Constraint("Vertical", 58, 3, 61, 3),
    Sketcher.Constraint("Vertical", 59, 3, 62, 3),
    Sketcher.Constraint("Vertical", 55, 3, 63, 3),
    Sketcher.Constraint("Vertical", 56, 3, 64, 3),
    Sketcher.Constraint("Vertical", 63, 3, 65, 3),
    Sketcher.Constraint("Vertical", 64, 3, 66, 3),
    Sketcher.Constraint("Vertical", 60, 3, 67, 3),
    Sketcher.Constraint("Vertical", 61, 3, 68, 3),
    Sketcher.Constraint("Vertical", 62, 3, 69, 3),
    Sketcher.Constraint("Vertical", 67, 3, 70, 3),
    Sketcher.Constraint("Vertical", 68, 3, 71, 3),
    Sketcher.Constraint("Vertical", 69, 3, 72, 3),
    Sketcher.Constraint("Vertical", 44, 3, 73, 3),
    Sketcher.Constraint("Vertical", 46, 3, 74, 3),
    Sketcher.Constraint("Vertical", 73, 3, 75, 3),
    Sketcher.Constraint("Vertical", 74, 3, 76, 3),
    Sketcher.Constraint("Vertical", 50, 3, 77, 3),
    Sketcher.Constraint("Vertical", 52, 3, 78, 3),
    Sketcher.Constraint("Vertical", 77, 3, 79, 3),
    Sketcher.Constraint("Vertical", 78, 3, 80, 3),
    Sketcher.Constraint("Vertical", 75, 3, 81, 3),
    Sketcher.Constraint("Vertical", 76, 3, 82, 3),
    Sketcher.Constraint("Vertical", 81, 3, 83, 3),
    Sketcher.Constraint("Vertical", 82, 3, 84, 3),
    Sketcher.Constraint("Vertical", 79, 3, 85, 3),
    Sketcher.Constraint("Vertical", 80, 3, 86, 3),
    Sketcher.Constraint("Vertical", 85, 3, 87, 3),
    Sketcher.Constraint("Vertical", 86, 3, 88, 3),
    Sketcher.Constraint("Equal", 4, 2),
    Sketcher.Constraint("Diameter", 8, Q("0.4 in")),
    Sketcher.Constraint("Radius", 1, Q("0.25 in")),
    Sketcher.Constraint("DistanceX", 0, 2, 0, 1, Q("9.5 in")),
    Sketcher.Constraint("DistanceX", -1, 1, 89, 3, Q("142.052799 mm")),
    Sketcher.Constraint("DistanceX", 1, 3, -1, 1, Q("61.94555 mm")),
    Sketcher.Constraint("DistanceX", 8, 3, -1, 1, Q("42.89555 mm")),
    Sketcher.Constraint("DistanceX", 9, 3, -1, 1, Q("17.49555 mm")),
    Sketcher.Constraint("DistanceX", -1, 1, 12, 3, Q("7.90445 mm")),
    Sketcher.Constraint("DistanceX", -1, 1, 13, 3, Q("33.30445 mm")),
    Sketcher.Constraint("DistanceX", -1, 1, 14, 3, Q("58.70445 mm")),
    Sketcher.Constraint("DistanceX", -1, 1, 33, 3, Q("84.10445 mm")),
    Sketcher.Constraint("DistanceX", -1, 1, 34, 3, Q("109.50445 mm")),
    Sketcher.Constraint("DistanceX", -1, 1, 37, 3, Q("134.90445 mm")),
    Sketcher.Constraint("DistanceX", -1, 1, 38, 3, Q("160.30445 mm")),
    Sketcher.Constraint("DistanceY", 89, 3, -1, 1, Q("257.841229 mm")),
    Sketcher.Constraint("DistanceY", -1, 1, 1, 3, Q("97.915114 mm")),
    Sketcher.Constraint("DistanceY", 8, 3, -1, 1, Q("124.334886 mm")),
    Sketcher.Constraint("DistanceY", 10, 3, -1, 1, Q("98.934886 mm")),
    Sketcher.Constraint("DistanceY", 18, 3, -1, 1, Q("73.534886 mm")),
    Sketcher.Constraint("DistanceY", 20, 3, -1, 1, Q("48.134886 mm")),
    Sketcher.Constraint("DistanceY", 21, 3, -1, 1, Q("22.734886 mm")),
    Sketcher.Constraint("DistanceY", -1, 1, 53, 3, Q("2.665114 mm")),
    Sketcher.Constraint("DistanceY", -1, 1, 55, 3, Q("28.065114 mm")),
    Sketcher.Constraint("DistanceY", -1, 1, 63, 3, Q("53.465114 mm")),
    Sketcher.Constraint("DistanceY", -1, 1, 65, 3, Q("78.865114 mm")),
])
pad2 = body.newObject("PartDesign::Pad", "Pad001")
pad2.Profile = sketch2
pad2.Length = Q("1 in")

doc.recompute()
